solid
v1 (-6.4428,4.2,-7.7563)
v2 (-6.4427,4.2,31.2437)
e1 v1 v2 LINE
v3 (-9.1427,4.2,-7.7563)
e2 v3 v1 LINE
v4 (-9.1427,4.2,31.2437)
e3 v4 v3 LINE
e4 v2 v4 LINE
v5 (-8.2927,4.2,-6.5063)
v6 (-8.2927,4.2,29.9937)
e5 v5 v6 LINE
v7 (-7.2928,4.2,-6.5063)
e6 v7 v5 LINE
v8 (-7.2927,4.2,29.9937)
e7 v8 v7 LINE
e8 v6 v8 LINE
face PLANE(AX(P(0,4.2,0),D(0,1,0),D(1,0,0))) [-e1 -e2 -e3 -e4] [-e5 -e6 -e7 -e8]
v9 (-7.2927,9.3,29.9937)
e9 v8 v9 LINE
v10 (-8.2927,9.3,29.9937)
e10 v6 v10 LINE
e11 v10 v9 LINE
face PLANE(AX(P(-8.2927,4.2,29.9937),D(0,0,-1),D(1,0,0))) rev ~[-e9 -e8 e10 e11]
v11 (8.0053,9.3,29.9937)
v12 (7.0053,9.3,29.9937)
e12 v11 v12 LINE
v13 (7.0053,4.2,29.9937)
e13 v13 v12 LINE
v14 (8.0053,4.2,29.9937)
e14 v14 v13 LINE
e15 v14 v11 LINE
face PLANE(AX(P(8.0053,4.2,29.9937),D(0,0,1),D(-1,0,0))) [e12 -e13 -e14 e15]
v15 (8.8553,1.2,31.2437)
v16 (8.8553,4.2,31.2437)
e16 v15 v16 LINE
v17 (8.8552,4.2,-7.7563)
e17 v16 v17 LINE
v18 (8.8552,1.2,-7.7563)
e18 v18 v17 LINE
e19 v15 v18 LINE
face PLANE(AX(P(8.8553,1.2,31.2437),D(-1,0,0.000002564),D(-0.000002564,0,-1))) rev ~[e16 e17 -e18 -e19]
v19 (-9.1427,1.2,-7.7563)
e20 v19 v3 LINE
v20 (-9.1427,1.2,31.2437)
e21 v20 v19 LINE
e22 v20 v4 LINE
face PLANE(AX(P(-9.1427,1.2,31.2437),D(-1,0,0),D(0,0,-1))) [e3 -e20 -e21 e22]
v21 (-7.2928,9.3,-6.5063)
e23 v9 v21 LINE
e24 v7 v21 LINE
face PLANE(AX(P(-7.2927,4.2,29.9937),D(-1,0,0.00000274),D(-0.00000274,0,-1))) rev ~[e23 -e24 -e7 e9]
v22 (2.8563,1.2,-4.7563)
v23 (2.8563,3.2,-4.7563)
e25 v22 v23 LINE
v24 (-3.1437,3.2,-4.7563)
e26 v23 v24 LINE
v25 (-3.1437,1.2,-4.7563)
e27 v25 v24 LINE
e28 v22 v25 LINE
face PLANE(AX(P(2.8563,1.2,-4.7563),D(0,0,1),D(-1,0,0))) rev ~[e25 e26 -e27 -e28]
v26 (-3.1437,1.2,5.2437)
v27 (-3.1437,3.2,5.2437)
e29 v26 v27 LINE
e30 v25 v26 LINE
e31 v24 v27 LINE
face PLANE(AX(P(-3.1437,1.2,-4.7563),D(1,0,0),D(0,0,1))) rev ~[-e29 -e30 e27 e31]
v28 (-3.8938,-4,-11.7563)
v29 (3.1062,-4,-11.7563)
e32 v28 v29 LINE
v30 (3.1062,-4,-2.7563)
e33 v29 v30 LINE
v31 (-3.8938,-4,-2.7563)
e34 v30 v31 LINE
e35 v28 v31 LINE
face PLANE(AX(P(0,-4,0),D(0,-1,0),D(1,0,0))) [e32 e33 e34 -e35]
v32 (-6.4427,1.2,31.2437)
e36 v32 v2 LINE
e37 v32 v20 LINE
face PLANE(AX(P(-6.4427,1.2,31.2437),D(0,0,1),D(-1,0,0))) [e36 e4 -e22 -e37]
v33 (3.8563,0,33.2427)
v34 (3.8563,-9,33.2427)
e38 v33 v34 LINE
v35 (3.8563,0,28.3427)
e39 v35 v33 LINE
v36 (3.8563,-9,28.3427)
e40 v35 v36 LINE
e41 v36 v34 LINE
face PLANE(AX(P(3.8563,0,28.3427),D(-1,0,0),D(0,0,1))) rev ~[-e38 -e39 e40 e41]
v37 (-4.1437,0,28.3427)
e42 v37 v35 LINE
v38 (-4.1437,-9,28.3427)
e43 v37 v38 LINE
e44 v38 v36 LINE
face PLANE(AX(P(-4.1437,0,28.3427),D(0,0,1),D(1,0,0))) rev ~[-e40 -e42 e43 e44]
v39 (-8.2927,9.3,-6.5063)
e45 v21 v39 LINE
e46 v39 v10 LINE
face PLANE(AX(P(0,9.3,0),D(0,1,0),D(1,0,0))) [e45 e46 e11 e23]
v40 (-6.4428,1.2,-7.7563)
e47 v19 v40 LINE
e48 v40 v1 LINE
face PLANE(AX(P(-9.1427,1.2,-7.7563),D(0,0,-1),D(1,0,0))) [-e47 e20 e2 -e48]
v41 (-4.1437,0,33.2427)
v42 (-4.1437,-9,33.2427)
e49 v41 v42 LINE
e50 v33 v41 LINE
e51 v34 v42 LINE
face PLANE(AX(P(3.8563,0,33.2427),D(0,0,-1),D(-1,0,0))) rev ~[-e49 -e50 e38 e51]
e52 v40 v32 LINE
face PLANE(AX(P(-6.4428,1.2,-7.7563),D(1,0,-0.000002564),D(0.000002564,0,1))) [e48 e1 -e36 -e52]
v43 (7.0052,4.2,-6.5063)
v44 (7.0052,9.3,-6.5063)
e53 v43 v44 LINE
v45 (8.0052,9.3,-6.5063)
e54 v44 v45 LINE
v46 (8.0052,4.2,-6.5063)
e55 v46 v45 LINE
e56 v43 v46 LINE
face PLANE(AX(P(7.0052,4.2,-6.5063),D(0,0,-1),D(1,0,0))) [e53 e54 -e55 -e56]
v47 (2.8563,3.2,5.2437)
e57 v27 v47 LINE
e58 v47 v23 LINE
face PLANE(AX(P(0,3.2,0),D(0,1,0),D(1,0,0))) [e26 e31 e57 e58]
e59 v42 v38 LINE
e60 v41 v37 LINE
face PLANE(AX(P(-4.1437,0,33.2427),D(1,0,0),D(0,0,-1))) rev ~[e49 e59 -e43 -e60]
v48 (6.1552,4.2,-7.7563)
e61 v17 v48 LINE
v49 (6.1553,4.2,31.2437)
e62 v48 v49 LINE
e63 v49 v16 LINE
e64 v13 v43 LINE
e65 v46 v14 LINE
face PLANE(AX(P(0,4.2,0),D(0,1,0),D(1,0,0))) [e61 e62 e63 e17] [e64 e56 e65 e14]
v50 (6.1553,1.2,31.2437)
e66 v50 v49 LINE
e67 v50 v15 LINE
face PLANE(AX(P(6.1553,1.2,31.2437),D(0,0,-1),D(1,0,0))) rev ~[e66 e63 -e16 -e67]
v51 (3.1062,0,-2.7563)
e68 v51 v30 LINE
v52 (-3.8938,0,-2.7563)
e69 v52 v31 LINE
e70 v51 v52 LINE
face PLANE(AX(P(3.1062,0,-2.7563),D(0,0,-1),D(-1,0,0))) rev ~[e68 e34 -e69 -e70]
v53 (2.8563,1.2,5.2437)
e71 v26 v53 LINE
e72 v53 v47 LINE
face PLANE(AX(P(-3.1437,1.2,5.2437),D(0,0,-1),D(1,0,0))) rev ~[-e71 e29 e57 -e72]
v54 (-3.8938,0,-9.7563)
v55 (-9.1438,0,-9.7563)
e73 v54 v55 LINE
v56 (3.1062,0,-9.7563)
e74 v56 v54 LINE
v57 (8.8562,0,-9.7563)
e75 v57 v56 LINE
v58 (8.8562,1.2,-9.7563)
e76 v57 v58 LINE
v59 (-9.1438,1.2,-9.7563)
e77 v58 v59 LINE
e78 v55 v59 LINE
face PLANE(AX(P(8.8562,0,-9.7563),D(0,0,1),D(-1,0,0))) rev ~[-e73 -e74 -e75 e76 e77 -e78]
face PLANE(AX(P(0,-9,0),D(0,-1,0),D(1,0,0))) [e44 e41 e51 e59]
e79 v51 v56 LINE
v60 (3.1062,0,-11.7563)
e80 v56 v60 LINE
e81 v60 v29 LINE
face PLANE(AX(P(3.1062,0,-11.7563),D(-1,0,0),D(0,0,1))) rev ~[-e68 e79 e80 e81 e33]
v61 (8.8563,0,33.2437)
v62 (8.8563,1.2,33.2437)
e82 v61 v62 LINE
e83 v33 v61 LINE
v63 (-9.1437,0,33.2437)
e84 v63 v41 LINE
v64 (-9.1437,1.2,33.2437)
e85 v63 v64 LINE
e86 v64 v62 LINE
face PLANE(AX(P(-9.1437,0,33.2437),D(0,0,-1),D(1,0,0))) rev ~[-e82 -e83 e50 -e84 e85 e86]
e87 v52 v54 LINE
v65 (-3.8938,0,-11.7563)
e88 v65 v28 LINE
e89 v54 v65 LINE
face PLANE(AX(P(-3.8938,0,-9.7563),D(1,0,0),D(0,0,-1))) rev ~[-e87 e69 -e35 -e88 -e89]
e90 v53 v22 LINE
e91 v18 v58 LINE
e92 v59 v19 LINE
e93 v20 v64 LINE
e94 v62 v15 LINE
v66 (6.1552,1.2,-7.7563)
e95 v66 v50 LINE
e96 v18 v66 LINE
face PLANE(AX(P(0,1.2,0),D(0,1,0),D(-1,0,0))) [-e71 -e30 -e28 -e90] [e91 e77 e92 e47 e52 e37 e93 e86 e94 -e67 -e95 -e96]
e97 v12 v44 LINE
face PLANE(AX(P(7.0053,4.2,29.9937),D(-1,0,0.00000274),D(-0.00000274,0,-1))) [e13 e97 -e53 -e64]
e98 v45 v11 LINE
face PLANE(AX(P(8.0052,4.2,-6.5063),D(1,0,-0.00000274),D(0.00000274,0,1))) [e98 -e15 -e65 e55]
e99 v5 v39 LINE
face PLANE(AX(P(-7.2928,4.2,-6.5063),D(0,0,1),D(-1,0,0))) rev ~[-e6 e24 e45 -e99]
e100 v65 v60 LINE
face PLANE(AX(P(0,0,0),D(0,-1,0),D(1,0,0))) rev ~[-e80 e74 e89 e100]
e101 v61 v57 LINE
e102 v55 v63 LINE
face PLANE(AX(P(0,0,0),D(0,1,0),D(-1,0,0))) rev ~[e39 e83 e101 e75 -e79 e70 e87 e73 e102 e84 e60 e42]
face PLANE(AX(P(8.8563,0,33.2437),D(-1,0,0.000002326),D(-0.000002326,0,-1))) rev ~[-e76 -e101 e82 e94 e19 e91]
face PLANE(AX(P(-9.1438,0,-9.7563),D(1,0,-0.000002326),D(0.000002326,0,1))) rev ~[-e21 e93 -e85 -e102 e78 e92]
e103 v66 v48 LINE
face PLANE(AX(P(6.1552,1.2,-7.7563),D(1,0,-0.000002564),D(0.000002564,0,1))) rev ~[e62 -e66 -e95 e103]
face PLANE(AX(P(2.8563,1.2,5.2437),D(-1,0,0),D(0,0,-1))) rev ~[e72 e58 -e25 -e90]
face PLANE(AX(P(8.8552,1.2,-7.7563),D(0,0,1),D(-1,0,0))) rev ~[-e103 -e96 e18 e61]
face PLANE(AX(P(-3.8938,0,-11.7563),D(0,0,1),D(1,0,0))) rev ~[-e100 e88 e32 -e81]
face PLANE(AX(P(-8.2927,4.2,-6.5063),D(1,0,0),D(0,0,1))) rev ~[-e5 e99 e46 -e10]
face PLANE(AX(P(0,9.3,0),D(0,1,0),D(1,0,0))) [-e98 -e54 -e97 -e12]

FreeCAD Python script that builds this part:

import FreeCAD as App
import Part
import Sketcher

doc = App.newDocument("Part")
body = doc.addObject("PartDesign::Body", "Body")

# Sketch on XZ plane
sketch1 = body.newObject("Sketcher::SketchObject", "Sketch")
sketch1.AttachmentSupport = (doc.getObject("XZ_Plane"), [""])
sketch1.MapMode = "FlatFace"
sketch1.addGeometry([
    Part.LineSegment(App.Vector(-9, -10, 0), App.Vector(-9, 33, 0)),
    Part.LineSegment(App.Vector(-9, 33, 0), App.Vector(9, 33, 0)),
    Part.LineSegment(App.Vector(9, 33, 0), App.Vector(9, -10, 0)),
    Part.LineSegment(App.Vector(9, -10, 0), App.Vector(-9, -10, 0)),
], False)
sketch1.addConstraint([
    Sketcher.Constraint("Coincident", 0, 2, 1, 1),
    Sketcher.Constraint("Coincident", 1, 2, 2, 1),
    Sketcher.Constraint("Coincident", 2, 2, 3, 1),
    Sketcher.Constraint("Coincident", 3, 2, 0, 1),
    Sketcher.Constraint("Vertical", 0),
    Sketcher.Constraint("Horizontal", 1),
    Sketcher.Constraint("Vertical", 2),
    Sketcher.Constraint("Horizontal", 3),
    Sketcher.Constraint("DistanceX", 1, 1, 1, 2, 18.0),
    Sketcher.Constraint("DistanceY", 0, 1, 0, 2, 43.0),
    Sketcher.Constraint("DistanceX", 0, 2, -1, 1, 9.1437),
    Sketcher.Constraint("DistanceY", -1, 1, 0, 2, 33.2437),
])
pad1 = body.newObject("PartDesign::Pad", "Pad")
pad1.Profile = sketch1
pad1.Length = 1.2
pad1.Reversed = True

# Sketch on XZ plane
sketch2 = body.newObject("Sketcher::SketchObject", "Sketch001")
sketch2.AttachmentSupport = (doc.getObject("XZ_Plane"), [""])
sketch2.MapMode = "FlatFace"
sketch2.AttachmentOffset = App.Placement(App.Vector(0, 0, -1.2), App.Rotation())
sketch2.addGeometry([
    Part.LineSegment(App.Vector(-9.1, 31.2, 0), App.Vector(-6.4, 31.2, 0)),  # 0
    Part.LineSegment(App.Vector(-6.4, 31.2, 0), App.Vector(-6.4, -7.8, 0)),  # 1
    Part.LineSegment(App.Vector(-6.4, -7.8, 0), App.Vector(-9.1, -7.8, 0)),  # 2
    Part.LineSegment(App.Vector(-9.1, -7.8, 0), App.Vector(-9.1, 31.2, 0)),  # 3
    Part.LineSegment(App.Vector(6.2, 31.2, 0), App.Vector(8.9, 31.2, 0)),  # 4
    Part.LineSegment(App.Vector(8.9, 31.2, 0), App.Vector(8.9, -7.8, 0)),  # 5
    Part.LineSegment(App.Vector(8.9, -7.8, 0), App.Vector(6.2, -7.8, 0)),  # 6
    Part.LineSegment(App.Vector(6.2, -7.8, 0), App.Vector(6.2, 31.2, 0)),  # 7
], False)
sketch2.addConstraint([
    Sketcher.Constraint("Coincident", 0, 2, 1, 1),
    Sketcher.Constraint("Coincident", 1, 2, 2, 1),
    Sketcher.Constraint("Coincident", 2, 2, 3, 1),
    Sketcher.Constraint("Coincident", 3, 2, 0, 1),
    Sketcher.Constraint("Coincident", 4, 2, 5, 1),
    Sketcher.Constraint("Coincident", 5, 2, 6, 1),
    Sketcher.Constraint("Coincident", 6, 2, 7, 1),
    Sketcher.Constraint("Coincident", 7, 2, 4, 1),
    Sketcher.Constraint("Horizontal", 0),
    Sketcher.Constraint("Vertical", 1),
    Sketcher.Constraint("Horizontal", 2),
    Sketcher.Constraint("Vertical", 3),
    Sketcher.Constraint("Horizontal", 4),
    Sketcher.Constraint("Vertical", 5),
    Sketcher.Constraint("Horizontal", 6),
    Sketcher.Constraint("Vertical", 7),
    Sketcher.Constraint("Horizontal", 3, 2, 4, 2),
    Sketcher.Constraint("Horizontal", 2, 2, 5, 2),
    Sketcher.Constraint("Equal", 2, 4),
    Sketcher.Constraint("DistanceX", 0, 1, 0, 2, 2.7),
    Sketcher.Constraint("DistanceY", 1, 2, 1, 1, 39.0),
    Sketcher.Constraint("DistanceX", 0, 2, 4, 2, 15.298),
    Sketcher.Constraint("DistanceX", 0, 2, -1, 1, 6.4427),
    Sketcher.Constraint("DistanceY", -1, 1, 0, 2, 31.2437),
])
pad2 = body.newObject("PartDesign::Pad", "Pad001")
pad2.Profile = sketch2
pad2.Length = 3
pad2.Reversed = True

# Sketch on XZ plane
sketch3 = body.newObject("Sketcher::SketchObject", "Sketch002")
sketch3.AttachmentSupport = (doc.getObject("XZ_Plane"), [""])
sketch3.MapMode = "FlatFace"
sketch3.AttachmentOffset = App.Placement(App.Vector(0, 0, -1.2), App.Rotation())
sketch3.addGeometry([
    Part.LineSegment(App.Vector(3, 5, 0), App.Vector(3, -5, 0)),
    Part.LineSegment(App.Vector(3, -5, 0), App.Vector(-3, -5, 0)),
    Part.LineSegment(App.Vector(-3, -5, 0), App.Vector(-3, 5, 0)),
    Part.LineSegment(App.Vector(-3, 5, 0), App.Vector(3, 5, 0)),
], False)
sketch3.addConstraint([
    Sketcher.Constraint("Coincident", 0, 2, 1, 1),
    Sketcher.Constraint("Coincident", 1, 2, 2, 1),
    Sketcher.Constraint("Coincident", 2, 2, 3, 1),
    Sketcher.Constraint("Coincident", 3, 2, 0, 1),
    Sketcher.Constraint("Vertical", 0),
    Sketcher.Constraint("Horizontal", 1),
    Sketcher.Constraint("Vertical", 2),
    Sketcher.Constraint("Horizontal", 3),
    Sketcher.Constraint("DistanceX", 1, 2, 1, 1, 6.0),
    Sketcher.Constraint("DistanceY", 0, 2, 0, 1, 10.0),
    Sketcher.Constraint("DistanceX", -1, 1, 0, 2, 2.8563),
    Sketcher.Constraint("DistanceY", 0, 2, -1, 1, 4.7563),
])
pad3 = body.newObject("PartDesign::Pad", "Pad002")
pad3.Profile = sketch3
pad3.Length = 2
pad3.Reversed = True

# Sketch on XZ plane
sketch4 = body.newObject("Sketcher::SketchObject", "Sketch003")
sketch4.AttachmentSupport = (doc.getObject("XZ_Plane"), [""])
sketch4.MapMode = "FlatFace"
sketch4.addGeometry([
    Part.LineSegment(App.Vector(-4, -12, 0), App.Vector(3, -12, 0)),
    Part.LineSegment(App.Vector(3, -12, 0), App.Vector(3, -3, 0)),
    Part.LineSegment(App.Vector(3, -3, 0), App.Vector(-4, -3, 0)),
    Part.LineSegment(App.Vector(-4, -3, 0), App.Vector(-4, -12, 0)),
], False)
sketch4.addConstraint([
    Sketcher.Constraint("Coincident", 0, 2, 1, 1),
    Sketcher.Constraint("Coincident", 1, 2, 2, 1),
    Sketcher.Constraint("Coincident", 2, 2, 3, 1),
    Sketcher.Constraint("Coincident", 3, 2, 0, 1),
    Sketcher.Constraint("Horizontal", 0),
    Sketcher.Constraint("Vertical", 1),
    Sketcher.Constraint("Horizontal", 2),
    Sketcher.Constraint("Vertical", 3),
    Sketcher.Constraint("DistanceX", 0, 1, 0, 2, 7.0),
    Sketcher.Constraint("DistanceY", 1, 1, 1, 2, 9.0),
    Sketcher.Constraint("DistanceX", -1, 1, 0, 2, 3.1062),
    Sketcher.Constraint("DistanceY", 0, 2, -1, 1, 11.7563),
])
pad4 = body.newObject("PartDesign::Pad", "Pad003")
pad4.Profile = sketch4
pad4.Length = 4

# Sketch on XZ plane
sketch5 = body.newObject("Sketcher::SketchObject", "Sketch004")
sketch5.AttachmentSupport = (doc.getObject("XZ_Plane"), [""])
sketch5.MapMode = "FlatFace"
sketch5.addGeometry([
    Part.LineSegment(App.Vector(3.9, 28.3, 0), App.Vector(3.9, 33.2, 0)),
    Part.LineSegment(App.Vector(3.9, 33.2, 0), App.Vector(-4.1, 33.2, 0)),
    Part.LineSegment(App.Vector(-4.1, 33.2, 0), App.Vector(-4.1, 28.3, 0)),
    Part.LineSegment(App.Vector(-4.1, 28.3, 0), App.Vector(3.9, 28.3, 0)),
], False)
sketch5.addConstraint([
    Sketcher.Constraint("Coincident", 0, 2, 1, 1),
    Sketcher.Constraint("Coincident", 1, 2, 2, 1),
    Sketcher.Constraint("Coincident", 2, 2, 3, 1),
    Sketcher.Constraint("Coincident", 3, 2, 0, 1),
    Sketcher.Constraint("Vertical", 0),
    Sketcher.Constraint("Horizontal", 1),
    Sketcher.Constraint("Vertical", 2),
    Sketcher.Constraint("Horizontal", 3),
    Sketcher.Constraint("DistanceY", 0, 1, 0, 2, 4.9),
    Sketcher.Constraint("DistanceX", 1, 2, 1, 1, 8.0),
    Sketcher.Constraint("DistanceX", -1, 1, 0, 2, 3.8563),
    Sketcher.Constraint("DistanceY", -1, 1, 0, 2, 33.2427),
])
pad5 = body.newObject("PartDesign::Pad", "Pad004")
pad5.Profile = sketch5
pad5.Length = 9

# Sketch on XZ plane
sketch6 = body.newObject("Sketcher::SketchObject", "Sketch005")
sketch6.AttachmentSupport = (doc.getObject("XZ_Plane"), [""])
sketch6.MapMode = "FlatFace"
sketch6.AttachmentOffset = App.Placement(App.Vector(0, 0, -4.2), App.Rotation())
sketch6.addGeometry([
    Part.LineSegment(App.Vector(-8.3, -6.5, 0), App.Vector(-8.3, 30, 0)),  # 0
    Part.LineSegment(App.Vector(-8.3, 30, 0), App.Vector(-7.3, 30, 0)),  # 1
    Part.LineSegment(App.Vector(-7.3, 30, 0), App.Vector(-7.3, -6.5, 0)),  # 2
    Part.LineSegment(App.Vector(-7.3, -6.5, 0), App.Vector(-8.3, -6.5, 0)),  # 3
    Part.LineSegment(App.Vector(7, 30, 0), App.Vector(8, 30, 0)),  # 4
    Part.LineSegment(App.Vector(8, 30, 0), App.Vector(8, -6.5, 0)),  # 5
    Part.LineSegment(App.Vector(8, -6.5, 0), App.Vector(7, -6.5, 0)),  # 6
    Part.LineSegment(App.Vector(7, -6.5, 0), App.Vector(7, 30, 0)),  # 7
], False)
sketch6.addConstraint([
    Sketcher.Constraint("Coincident", 0, 2, 1, 1),
    Sketcher.Constraint("Coincident", 1, 2, 2, 1),
    Sketcher.Constraint("Coincident", 2, 2, 3, 1),
    Sketcher.Constraint("Coincident", 3, 2, 0, 1),
    Sketcher.Constraint("Coincident", 4, 2, 5, 1),
    Sketcher.Constraint("Coincident", 5, 2, 6, 1),
    Sketcher.Constraint("Coincident", 6, 2, 7, 1),
    Sketcher.Constraint("Coincident", 7, 2, 4, 1),
    Sketcher.Constraint("Vertical", 0),
    Sketcher.Constraint("Horizontal", 1),
    Sketcher.Constraint("Vertical", 2),
    Sketcher.Constraint("Horizontal", 3),
    Sketcher.Constraint("Horizontal", 4),
    Sketcher.Constraint("Vertical", 5),
    Sketcher.Constraint("Horizontal", 6),
    Sketcher.Constraint("Vertical", 7),
    Sketcher.Constraint("Horizontal", 1, 2, 4, 2),
    Sketcher.Constraint("Horizontal", 3, 2, 5, 2),
    Sketcher.Constraint("Equal", 3, 4),
    Sketcher.Constraint("DistanceX", 1, 1, 1, 2, 1.0),
    Sketcher.Constraint("DistanceY", 0, 1, 0, 2, 36.5),
    Sketcher.Constraint("DistanceX", 1, 2, 4, 2, 15.298),
    Sketcher.Constraint("DistanceX", 0, 2, -1, 1, 8.2927),
    Sketcher.Constraint("DistanceY", -1, 1, 0, 2, 29.9937),
])
pad6 = body.newObject("PartDesign::Pad", "Pad005")
pad6.Profile = sketch6
pad6.Length = 5.1
pad6.Reversed = True

doc.recompute()
